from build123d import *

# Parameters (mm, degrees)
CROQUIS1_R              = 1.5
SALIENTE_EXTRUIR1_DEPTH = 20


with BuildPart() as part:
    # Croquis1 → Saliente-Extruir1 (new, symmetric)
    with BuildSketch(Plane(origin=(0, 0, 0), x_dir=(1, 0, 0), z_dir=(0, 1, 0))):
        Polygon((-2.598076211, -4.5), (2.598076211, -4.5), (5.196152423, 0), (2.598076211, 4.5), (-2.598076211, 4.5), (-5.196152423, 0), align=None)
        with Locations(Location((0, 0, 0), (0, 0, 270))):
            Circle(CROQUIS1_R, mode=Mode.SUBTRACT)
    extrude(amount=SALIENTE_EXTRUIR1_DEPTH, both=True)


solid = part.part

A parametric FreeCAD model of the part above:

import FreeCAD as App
import Part
import Sketcher

V = App.Vector
Q = App.Units.Quantity

doc = App.newDocument("Part")
params = doc.addObject("Spreadsheet::Sheet", "Params")
for row, (alias, value) in enumerate([
    ("sketch1_diameter", "3 mm"),
    ("pad1_length", "40 mm"),
], start=1):
    params.set(f"A{row}", alias)
    params.set(f"B{row}", "=" + value)
    params.setAlias(f"B{row}", alias)

body = doc.addObject("PartDesign::Body", "Body")

# Sketch on XZ plane
sketch1 = body.newObject("Sketcher::SketchObject", "Sketch")
sketch1.AttachmentSupport = (doc.getObject("XZ_Plane"), [""])
sketch1.MapMode = "FlatFace"
sketch1.addGeometry(Part.LineSegment(V(-2.6, 4.5, 0), V(2.6, 4.5, 0)), False)
sketch1.addGeometry(Part.LineSegment(V(2.6, 4.5, 0), V(5.2, 0, 0)), False)
sketch1.addGeometry(Part.LineSegment(V(5.2, 0, 0), V(2.6, -4.5, 0)), False)
sketch1.addGeometry(Part.LineSegment(V(2.6, -4.5, 0), V(-2.6, -4.5, 0)), False)
sketch1.addGeometry(Part.LineSegment(V(-2.6, -4.5, 0), V(-5.2, 0, 0)), False)
sketch1.addGeometry(Part.LineSegment(V(-5.2, 0, 0), V(-2.6, 4.5, 0)), False)
sketch1.addGeometry(Part.Circle(V(0, 0, 0), V(0, 0, 1), 1.5), False)
sketch1.addConstraint(Sketcher.Constraint("Coincident", 0, 2, 1, 1))
sketch1.addConstraint(Sketcher.Constraint("Coincident", 1, 2, 2, 1))
sketch1.addConstraint(Sketcher.Constraint("Coincident", 2, 2, 3, 1))
sketch1.addConstraint(Sketcher.Constraint("Coincident", 3, 2, 4, 1))
sketch1.addConstraint(Sketcher.Constraint("Coincident", 4, 2, 5, 1))
sketch1.addConstraint(Sketcher.Constraint("Coincident", 5, 2, 0, 1))
sketch1.addConstraint(Sketcher.Constraint("Horizontal", 0))
sketch1.addConstraint(Sketcher.Constraint("Horizontal", 3))
sketch1.addConstraint(Sketcher.Constraint("Coincident", 6, 3, -1, 1))
sketch1.addConstraint(Sketcher.Constraint("Symmetric", 0, 2, 3, 2, -1, 1))
sketch1.addConstraint(Sketcher.Constraint("Symmetric", 1, 2, 4, 2, -1, 1))
sketch1.addConstraint(Sketcher.Constraint("PointOnObject", 1, 2, -1))
sketch1.addConstraint(Sketcher.Constraint("Parallel", 2, 5))
sketch1.addConstraint(Sketcher.Constraint("Vertical", 0, 2, 2, 2))
sketch1.addConstraint(Sketcher.Constraint("Diameter", 6, 3.0))
sketch1.addConstraint(Sketcher.Constraint("Angle", 1, Q("-60 deg")))
sketch1.addConstraint(Sketcher.Constraint("DistanceY", 2, 2, 0, 2, 9.0))
sketch1.addConstraint(Sketcher.Constraint("DistanceX", 0, 1, 0, 2, 5.196152))
sketch1.setExpression("Constraints[14]", "Params.sketch1_diameter")
pad1 = body.newObject("PartDesign::Pad", "Pad")
pad1.Profile = sketch1
pad1.setExpression("Length", "Params.pad1_length")
pad1.Midplane = True

doc.recompute()
